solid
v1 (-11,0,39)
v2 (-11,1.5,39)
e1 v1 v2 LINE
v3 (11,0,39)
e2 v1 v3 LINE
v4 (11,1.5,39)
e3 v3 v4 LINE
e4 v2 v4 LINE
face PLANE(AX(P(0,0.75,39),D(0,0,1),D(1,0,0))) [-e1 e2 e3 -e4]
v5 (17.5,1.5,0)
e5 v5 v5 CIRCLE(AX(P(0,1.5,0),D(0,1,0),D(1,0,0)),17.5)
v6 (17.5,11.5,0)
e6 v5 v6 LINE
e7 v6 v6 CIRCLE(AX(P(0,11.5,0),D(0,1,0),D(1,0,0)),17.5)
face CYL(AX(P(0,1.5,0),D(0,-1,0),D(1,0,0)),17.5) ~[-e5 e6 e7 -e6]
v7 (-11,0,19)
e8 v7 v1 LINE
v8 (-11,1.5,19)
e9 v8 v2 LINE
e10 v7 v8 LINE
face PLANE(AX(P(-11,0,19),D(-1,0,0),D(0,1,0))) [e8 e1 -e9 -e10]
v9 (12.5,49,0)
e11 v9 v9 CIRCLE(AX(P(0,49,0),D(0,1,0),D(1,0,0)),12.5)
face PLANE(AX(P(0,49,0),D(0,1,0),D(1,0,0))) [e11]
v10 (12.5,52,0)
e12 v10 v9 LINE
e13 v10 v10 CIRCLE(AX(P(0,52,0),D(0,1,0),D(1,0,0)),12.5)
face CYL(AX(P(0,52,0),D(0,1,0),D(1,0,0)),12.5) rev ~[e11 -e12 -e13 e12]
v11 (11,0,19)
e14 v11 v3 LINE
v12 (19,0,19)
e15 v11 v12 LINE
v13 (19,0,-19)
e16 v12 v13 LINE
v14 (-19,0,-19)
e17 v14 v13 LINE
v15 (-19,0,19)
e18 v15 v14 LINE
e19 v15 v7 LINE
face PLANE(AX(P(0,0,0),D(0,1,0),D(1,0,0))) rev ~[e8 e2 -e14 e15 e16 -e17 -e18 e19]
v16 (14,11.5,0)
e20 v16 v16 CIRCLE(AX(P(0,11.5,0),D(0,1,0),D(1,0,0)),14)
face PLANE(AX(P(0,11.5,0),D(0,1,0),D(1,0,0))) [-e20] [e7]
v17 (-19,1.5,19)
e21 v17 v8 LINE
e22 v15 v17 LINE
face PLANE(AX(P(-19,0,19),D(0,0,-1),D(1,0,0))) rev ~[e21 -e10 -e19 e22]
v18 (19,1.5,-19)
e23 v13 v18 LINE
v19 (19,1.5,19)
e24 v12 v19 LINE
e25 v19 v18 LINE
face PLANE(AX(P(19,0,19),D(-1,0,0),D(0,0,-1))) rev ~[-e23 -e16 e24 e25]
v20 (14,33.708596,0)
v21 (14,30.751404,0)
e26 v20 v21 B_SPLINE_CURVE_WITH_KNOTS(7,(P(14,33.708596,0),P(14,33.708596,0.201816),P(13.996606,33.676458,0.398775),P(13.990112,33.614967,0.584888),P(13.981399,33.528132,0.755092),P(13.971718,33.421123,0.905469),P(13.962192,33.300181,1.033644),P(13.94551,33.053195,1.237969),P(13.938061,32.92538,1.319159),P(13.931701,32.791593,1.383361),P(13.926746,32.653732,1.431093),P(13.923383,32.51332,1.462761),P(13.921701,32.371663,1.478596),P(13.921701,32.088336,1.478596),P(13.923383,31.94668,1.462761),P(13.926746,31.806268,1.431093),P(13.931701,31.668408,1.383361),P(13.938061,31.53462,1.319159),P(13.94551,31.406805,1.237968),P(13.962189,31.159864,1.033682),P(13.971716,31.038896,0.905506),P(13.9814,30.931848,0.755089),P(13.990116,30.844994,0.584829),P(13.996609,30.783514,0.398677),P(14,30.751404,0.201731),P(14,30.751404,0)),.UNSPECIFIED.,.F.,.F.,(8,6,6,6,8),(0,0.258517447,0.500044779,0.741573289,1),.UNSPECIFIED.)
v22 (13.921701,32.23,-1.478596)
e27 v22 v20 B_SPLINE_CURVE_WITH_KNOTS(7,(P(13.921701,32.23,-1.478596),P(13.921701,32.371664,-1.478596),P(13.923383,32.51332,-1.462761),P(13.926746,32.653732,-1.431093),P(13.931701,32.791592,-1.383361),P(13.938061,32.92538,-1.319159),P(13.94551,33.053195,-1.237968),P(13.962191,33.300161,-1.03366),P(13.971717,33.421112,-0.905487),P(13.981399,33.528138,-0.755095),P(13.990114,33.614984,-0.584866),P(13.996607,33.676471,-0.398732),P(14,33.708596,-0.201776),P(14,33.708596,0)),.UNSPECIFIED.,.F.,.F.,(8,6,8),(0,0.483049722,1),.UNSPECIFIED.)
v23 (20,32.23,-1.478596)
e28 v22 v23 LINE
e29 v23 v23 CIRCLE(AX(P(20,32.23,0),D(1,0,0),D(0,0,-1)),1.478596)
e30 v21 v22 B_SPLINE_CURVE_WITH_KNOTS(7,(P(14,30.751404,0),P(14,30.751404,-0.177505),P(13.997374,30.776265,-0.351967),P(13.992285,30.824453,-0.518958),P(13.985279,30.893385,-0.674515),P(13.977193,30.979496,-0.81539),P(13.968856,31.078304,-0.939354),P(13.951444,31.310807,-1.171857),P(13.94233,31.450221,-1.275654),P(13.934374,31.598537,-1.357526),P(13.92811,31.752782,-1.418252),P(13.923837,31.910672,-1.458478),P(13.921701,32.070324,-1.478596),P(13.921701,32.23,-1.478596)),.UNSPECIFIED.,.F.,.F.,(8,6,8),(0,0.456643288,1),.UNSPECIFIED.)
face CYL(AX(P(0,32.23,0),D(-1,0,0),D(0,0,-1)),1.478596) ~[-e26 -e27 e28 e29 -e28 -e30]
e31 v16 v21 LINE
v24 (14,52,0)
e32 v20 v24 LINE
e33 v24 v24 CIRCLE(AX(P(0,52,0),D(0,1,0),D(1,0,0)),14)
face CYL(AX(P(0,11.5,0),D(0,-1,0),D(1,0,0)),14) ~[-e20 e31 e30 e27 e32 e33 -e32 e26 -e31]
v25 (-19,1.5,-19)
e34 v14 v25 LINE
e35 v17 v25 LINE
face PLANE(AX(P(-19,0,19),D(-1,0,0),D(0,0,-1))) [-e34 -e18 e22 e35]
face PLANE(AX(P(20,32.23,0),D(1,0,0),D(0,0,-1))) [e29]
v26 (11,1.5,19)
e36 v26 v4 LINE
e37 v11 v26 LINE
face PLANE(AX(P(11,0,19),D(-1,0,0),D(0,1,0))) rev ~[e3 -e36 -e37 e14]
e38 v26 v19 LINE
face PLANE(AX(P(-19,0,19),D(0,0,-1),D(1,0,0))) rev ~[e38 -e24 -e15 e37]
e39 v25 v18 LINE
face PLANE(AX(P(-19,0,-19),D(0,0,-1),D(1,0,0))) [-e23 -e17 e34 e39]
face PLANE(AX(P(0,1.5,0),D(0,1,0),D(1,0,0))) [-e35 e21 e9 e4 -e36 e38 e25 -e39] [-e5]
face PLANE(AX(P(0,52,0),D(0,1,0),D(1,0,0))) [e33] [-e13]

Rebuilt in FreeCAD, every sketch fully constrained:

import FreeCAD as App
import Part
import Sketcher

V = App.Vector


def add_polygon(sketch, points):
    """Adds a closed chain of lines whose ends are joined by coincident constraints."""
    first, n = sketch.GeometryCount, len(points)
    for a, b in zip(points, points[1:] + points[:1]):
        sketch.addGeometry(Part.LineSegment(App.Vector(*a, 0), App.Vector(*b, 0)), False)
    for i in range(n):
        sketch.addConstraint(Sketcher.Constraint("Coincident", first + i, 2, first + (i + 1) % n, 1))

doc = App.newDocument("Part")
params = doc.addObject("Spreadsheet::Sheet", "Params")
for row, (alias, value) in enumerate([
    ("sketch1_width", "38 mm"),
    ("pad1_length", "1.5 mm"),
    ("sketch2_diameter", "35 mm"),
    ("pad2_length", "10 mm"),
    ("sketch3_diameter", "28 mm"),
    ("pad3_length", "40.5 mm"),
    ("sketch4_diameter", "25 mm"),
    ("pocket1_length", "3 mm"),
    ("pad4_length", "20 mm"),
    ("sketch6_width", "22 mm"),
    ("sketch6_height", "1.5 mm"),
    ("pad5_length", "20 mm"),
], start=1):
    params.set(f"A{row}", alias)
    params.set(f"B{row}", "=" + value)
    params.setAlias(f"B{row}", alias)

body = doc.addObject("PartDesign::Body", "Body")

sketch1 = doc.addObject("Sketcher::SketchObject", "Sketch")
body.addObject(sketch1)
sketch1.AttachmentSupport = (doc.XZ_Plane, [""])
sketch1.MapMode = "FlatFace"
add_polygon(sketch1, [(-19, -19), (-19, 19), (19, 19), (19, -19)])
sketch1.addConstraint([
    Sketcher.Constraint("Vertical", 0),
    Sketcher.Constraint("Horizontal", 1),
    Sketcher.Constraint("Vertical", 2),
    Sketcher.Constraint("Horizontal", 3),
    Sketcher.Constraint("Symmetric", 0, 2, 2, 2, -1, 1),
    Sketcher.Constraint("Equal", 3, 0),
    Sketcher.Constraint("DistanceX", 1, 1, 1, 2, 38.0),
])
sketch1.setExpression("Constraints[10]", "Params.sketch1_width")
pad1 = doc.addObject("PartDesign::Pad", "Pad")
body.addObject(pad1)
pad1.Profile = sketch1
pad1.setExpression("Length", "Params.pad1_length")
pad1.Reversed = True

sketch2 = doc.addObject("Sketcher::SketchObject", "Sketch001")
body.addObject(sketch2)
sketch2.AttachmentSupport = (doc.XZ_Plane, [""])
sketch2.MapMode = "FlatFace"
sketch2.AttachmentOffset = App.Placement(V(0, 0, -1.5), App.Rotation())
sketch2.addGeometry(Part.Circle(V(0, 0, 0), V(0, 0, 1), 18), False)
sketch2.addConstraint([
    Sketcher.Constraint("Coincident", 0, 3, -1, 1),
    Sketcher.Constraint("Diameter", 0, 35.0),
])
sketch2.setExpression("Constraints[1]", "Params.sketch2_diameter")
pad2 = doc.addObject("PartDesign::Pad", "Pad001")
body.addObject(pad2)
pad2.Profile = sketch2
pad2.setExpression("Length", "Params.pad2_length")
pad2.Reversed = True

sketch3 = doc.addObject("Sketcher::SketchObject", "Sketch002")
body.addObject(sketch3)
sketch3.AttachmentSupport = (doc.XZ_Plane, [""])
sketch3.MapMode = "FlatFace"
sketch3.AttachmentOffset = App.Placement(V(0, 0, -11.5), App.Rotation())
sketch3.addGeometry(Part.Circle(V(0, 0, 0), V(0, 0, 1), 14), False)
sketch3.addConstraint([
    Sketcher.Constraint("Coincident", 0, 3, -1, 1),
    Sketcher.Constraint("Diameter", 0, 28.0),
])
sketch3.setExpression("Constraints[1]", "Params.sketch3_diameter")
pad3 = doc.addObject("PartDesign::Pad", "Pad002")
body.addObject(pad3)
pad3.Profile = sketch3
pad3.setExpression("Length", "Params.pad3_length")
pad3.Reversed = True

sketch4 = doc.addObject("Sketcher::SketchObject", "Sketch003")
body.addObject(sketch4)
sketch4.AttachmentSupport = (doc.XZ_Plane, [""])
sketch4.MapMode = "FlatFace"
sketch4.AttachmentOffset = App.Placement(V(0, 0, -52), App.Rotation())
sketch4.addGeometry(Part.Circle(V(0, 0, 0), V(0, 0, 1), 12), False)
sketch4.addConstraint([
    Sketcher.Constraint("Coincident", 0, 3, -1, 1),
    Sketcher.Constraint("Diameter", 0, 25.0),
])
sketch4.setExpression("Constraints[1]", "Params.sketch4_diameter")
pocket1 = doc.addObject("PartDesign::Pocket", "Pocket")
body.addObject(pocket1)
pocket1.Profile = sketch4
pocket1.setExpression("Length", "Params.pocket1_length")
pocket1.Reversed = True

sketch5 = doc.addObject("Sketcher::SketchObject", "Sketch004")
body.addObject(sketch5)
sketch5.AttachmentSupport = (doc.YZ_Plane, [""])
sketch5.MapMode = "FlatFace"
sketch5.addGeometry(Part.Circle(V(32.2, 0, 0), V(0, 0, 1), 1.5), False)
sketch5.addConstraint([
    Sketcher.Constraint("PointOnObject", 0, 3, -1),
    Sketcher.Constraint("Diameter", 0, 2.957191),
    Sketcher.Constraint("DistanceX", -1, 1, 0, 3, 32.23),
])
pad4 = doc.addObject("PartDesign::Pad", "Pad003")
body.addObject(pad4)
pad4.Profile = sketch5
pad4.setExpression("Length", "Params.pad4_length")

sketch6 = doc.addObject("Sketcher::SketchObject", "Sketch005")
body.addObject(sketch6)
sketch6.AttachmentSupport = (doc.XY_Plane, [""])
sketch6.MapMode = "FlatFace"
sketch6.AttachmentOffset = App.Placement(V(0, 0, 19), App.Rotation())
add_polygon(sketch6, [(-11, 1.5), (-11, 0), (11, 0), (11, 1.5)])
sketch6.addConstraint([
    Sketcher.Constraint("Vertical", 0),
    Sketcher.Constraint("Horizontal", 1),
    Sketcher.Constraint("Vertical", 2),
    Sketcher.Constraint("Horizontal", 3),
    Sketcher.Constraint("Symmetric", 0, 2, 1, 2, -1, 1),
    Sketcher.Constraint("DistanceX", 1, 1, 1, 2, 22.0),
    Sketcher.Constraint("DistanceY", 0, 2, 0, 1, 1.5),
])
sketch6.setExpression("Constraints[9]", "Params.sketch6_width")
sketch6.setExpression("Constraints[10]", "Params.sketch6_height")
pad5 = doc.addObject("PartDesign::Pad", "Pad004")
body.addObject(pad5)
pad5.Profile = sketch6
pad5.setExpression("Length", "Params.pad5_length")

doc.recompute()
